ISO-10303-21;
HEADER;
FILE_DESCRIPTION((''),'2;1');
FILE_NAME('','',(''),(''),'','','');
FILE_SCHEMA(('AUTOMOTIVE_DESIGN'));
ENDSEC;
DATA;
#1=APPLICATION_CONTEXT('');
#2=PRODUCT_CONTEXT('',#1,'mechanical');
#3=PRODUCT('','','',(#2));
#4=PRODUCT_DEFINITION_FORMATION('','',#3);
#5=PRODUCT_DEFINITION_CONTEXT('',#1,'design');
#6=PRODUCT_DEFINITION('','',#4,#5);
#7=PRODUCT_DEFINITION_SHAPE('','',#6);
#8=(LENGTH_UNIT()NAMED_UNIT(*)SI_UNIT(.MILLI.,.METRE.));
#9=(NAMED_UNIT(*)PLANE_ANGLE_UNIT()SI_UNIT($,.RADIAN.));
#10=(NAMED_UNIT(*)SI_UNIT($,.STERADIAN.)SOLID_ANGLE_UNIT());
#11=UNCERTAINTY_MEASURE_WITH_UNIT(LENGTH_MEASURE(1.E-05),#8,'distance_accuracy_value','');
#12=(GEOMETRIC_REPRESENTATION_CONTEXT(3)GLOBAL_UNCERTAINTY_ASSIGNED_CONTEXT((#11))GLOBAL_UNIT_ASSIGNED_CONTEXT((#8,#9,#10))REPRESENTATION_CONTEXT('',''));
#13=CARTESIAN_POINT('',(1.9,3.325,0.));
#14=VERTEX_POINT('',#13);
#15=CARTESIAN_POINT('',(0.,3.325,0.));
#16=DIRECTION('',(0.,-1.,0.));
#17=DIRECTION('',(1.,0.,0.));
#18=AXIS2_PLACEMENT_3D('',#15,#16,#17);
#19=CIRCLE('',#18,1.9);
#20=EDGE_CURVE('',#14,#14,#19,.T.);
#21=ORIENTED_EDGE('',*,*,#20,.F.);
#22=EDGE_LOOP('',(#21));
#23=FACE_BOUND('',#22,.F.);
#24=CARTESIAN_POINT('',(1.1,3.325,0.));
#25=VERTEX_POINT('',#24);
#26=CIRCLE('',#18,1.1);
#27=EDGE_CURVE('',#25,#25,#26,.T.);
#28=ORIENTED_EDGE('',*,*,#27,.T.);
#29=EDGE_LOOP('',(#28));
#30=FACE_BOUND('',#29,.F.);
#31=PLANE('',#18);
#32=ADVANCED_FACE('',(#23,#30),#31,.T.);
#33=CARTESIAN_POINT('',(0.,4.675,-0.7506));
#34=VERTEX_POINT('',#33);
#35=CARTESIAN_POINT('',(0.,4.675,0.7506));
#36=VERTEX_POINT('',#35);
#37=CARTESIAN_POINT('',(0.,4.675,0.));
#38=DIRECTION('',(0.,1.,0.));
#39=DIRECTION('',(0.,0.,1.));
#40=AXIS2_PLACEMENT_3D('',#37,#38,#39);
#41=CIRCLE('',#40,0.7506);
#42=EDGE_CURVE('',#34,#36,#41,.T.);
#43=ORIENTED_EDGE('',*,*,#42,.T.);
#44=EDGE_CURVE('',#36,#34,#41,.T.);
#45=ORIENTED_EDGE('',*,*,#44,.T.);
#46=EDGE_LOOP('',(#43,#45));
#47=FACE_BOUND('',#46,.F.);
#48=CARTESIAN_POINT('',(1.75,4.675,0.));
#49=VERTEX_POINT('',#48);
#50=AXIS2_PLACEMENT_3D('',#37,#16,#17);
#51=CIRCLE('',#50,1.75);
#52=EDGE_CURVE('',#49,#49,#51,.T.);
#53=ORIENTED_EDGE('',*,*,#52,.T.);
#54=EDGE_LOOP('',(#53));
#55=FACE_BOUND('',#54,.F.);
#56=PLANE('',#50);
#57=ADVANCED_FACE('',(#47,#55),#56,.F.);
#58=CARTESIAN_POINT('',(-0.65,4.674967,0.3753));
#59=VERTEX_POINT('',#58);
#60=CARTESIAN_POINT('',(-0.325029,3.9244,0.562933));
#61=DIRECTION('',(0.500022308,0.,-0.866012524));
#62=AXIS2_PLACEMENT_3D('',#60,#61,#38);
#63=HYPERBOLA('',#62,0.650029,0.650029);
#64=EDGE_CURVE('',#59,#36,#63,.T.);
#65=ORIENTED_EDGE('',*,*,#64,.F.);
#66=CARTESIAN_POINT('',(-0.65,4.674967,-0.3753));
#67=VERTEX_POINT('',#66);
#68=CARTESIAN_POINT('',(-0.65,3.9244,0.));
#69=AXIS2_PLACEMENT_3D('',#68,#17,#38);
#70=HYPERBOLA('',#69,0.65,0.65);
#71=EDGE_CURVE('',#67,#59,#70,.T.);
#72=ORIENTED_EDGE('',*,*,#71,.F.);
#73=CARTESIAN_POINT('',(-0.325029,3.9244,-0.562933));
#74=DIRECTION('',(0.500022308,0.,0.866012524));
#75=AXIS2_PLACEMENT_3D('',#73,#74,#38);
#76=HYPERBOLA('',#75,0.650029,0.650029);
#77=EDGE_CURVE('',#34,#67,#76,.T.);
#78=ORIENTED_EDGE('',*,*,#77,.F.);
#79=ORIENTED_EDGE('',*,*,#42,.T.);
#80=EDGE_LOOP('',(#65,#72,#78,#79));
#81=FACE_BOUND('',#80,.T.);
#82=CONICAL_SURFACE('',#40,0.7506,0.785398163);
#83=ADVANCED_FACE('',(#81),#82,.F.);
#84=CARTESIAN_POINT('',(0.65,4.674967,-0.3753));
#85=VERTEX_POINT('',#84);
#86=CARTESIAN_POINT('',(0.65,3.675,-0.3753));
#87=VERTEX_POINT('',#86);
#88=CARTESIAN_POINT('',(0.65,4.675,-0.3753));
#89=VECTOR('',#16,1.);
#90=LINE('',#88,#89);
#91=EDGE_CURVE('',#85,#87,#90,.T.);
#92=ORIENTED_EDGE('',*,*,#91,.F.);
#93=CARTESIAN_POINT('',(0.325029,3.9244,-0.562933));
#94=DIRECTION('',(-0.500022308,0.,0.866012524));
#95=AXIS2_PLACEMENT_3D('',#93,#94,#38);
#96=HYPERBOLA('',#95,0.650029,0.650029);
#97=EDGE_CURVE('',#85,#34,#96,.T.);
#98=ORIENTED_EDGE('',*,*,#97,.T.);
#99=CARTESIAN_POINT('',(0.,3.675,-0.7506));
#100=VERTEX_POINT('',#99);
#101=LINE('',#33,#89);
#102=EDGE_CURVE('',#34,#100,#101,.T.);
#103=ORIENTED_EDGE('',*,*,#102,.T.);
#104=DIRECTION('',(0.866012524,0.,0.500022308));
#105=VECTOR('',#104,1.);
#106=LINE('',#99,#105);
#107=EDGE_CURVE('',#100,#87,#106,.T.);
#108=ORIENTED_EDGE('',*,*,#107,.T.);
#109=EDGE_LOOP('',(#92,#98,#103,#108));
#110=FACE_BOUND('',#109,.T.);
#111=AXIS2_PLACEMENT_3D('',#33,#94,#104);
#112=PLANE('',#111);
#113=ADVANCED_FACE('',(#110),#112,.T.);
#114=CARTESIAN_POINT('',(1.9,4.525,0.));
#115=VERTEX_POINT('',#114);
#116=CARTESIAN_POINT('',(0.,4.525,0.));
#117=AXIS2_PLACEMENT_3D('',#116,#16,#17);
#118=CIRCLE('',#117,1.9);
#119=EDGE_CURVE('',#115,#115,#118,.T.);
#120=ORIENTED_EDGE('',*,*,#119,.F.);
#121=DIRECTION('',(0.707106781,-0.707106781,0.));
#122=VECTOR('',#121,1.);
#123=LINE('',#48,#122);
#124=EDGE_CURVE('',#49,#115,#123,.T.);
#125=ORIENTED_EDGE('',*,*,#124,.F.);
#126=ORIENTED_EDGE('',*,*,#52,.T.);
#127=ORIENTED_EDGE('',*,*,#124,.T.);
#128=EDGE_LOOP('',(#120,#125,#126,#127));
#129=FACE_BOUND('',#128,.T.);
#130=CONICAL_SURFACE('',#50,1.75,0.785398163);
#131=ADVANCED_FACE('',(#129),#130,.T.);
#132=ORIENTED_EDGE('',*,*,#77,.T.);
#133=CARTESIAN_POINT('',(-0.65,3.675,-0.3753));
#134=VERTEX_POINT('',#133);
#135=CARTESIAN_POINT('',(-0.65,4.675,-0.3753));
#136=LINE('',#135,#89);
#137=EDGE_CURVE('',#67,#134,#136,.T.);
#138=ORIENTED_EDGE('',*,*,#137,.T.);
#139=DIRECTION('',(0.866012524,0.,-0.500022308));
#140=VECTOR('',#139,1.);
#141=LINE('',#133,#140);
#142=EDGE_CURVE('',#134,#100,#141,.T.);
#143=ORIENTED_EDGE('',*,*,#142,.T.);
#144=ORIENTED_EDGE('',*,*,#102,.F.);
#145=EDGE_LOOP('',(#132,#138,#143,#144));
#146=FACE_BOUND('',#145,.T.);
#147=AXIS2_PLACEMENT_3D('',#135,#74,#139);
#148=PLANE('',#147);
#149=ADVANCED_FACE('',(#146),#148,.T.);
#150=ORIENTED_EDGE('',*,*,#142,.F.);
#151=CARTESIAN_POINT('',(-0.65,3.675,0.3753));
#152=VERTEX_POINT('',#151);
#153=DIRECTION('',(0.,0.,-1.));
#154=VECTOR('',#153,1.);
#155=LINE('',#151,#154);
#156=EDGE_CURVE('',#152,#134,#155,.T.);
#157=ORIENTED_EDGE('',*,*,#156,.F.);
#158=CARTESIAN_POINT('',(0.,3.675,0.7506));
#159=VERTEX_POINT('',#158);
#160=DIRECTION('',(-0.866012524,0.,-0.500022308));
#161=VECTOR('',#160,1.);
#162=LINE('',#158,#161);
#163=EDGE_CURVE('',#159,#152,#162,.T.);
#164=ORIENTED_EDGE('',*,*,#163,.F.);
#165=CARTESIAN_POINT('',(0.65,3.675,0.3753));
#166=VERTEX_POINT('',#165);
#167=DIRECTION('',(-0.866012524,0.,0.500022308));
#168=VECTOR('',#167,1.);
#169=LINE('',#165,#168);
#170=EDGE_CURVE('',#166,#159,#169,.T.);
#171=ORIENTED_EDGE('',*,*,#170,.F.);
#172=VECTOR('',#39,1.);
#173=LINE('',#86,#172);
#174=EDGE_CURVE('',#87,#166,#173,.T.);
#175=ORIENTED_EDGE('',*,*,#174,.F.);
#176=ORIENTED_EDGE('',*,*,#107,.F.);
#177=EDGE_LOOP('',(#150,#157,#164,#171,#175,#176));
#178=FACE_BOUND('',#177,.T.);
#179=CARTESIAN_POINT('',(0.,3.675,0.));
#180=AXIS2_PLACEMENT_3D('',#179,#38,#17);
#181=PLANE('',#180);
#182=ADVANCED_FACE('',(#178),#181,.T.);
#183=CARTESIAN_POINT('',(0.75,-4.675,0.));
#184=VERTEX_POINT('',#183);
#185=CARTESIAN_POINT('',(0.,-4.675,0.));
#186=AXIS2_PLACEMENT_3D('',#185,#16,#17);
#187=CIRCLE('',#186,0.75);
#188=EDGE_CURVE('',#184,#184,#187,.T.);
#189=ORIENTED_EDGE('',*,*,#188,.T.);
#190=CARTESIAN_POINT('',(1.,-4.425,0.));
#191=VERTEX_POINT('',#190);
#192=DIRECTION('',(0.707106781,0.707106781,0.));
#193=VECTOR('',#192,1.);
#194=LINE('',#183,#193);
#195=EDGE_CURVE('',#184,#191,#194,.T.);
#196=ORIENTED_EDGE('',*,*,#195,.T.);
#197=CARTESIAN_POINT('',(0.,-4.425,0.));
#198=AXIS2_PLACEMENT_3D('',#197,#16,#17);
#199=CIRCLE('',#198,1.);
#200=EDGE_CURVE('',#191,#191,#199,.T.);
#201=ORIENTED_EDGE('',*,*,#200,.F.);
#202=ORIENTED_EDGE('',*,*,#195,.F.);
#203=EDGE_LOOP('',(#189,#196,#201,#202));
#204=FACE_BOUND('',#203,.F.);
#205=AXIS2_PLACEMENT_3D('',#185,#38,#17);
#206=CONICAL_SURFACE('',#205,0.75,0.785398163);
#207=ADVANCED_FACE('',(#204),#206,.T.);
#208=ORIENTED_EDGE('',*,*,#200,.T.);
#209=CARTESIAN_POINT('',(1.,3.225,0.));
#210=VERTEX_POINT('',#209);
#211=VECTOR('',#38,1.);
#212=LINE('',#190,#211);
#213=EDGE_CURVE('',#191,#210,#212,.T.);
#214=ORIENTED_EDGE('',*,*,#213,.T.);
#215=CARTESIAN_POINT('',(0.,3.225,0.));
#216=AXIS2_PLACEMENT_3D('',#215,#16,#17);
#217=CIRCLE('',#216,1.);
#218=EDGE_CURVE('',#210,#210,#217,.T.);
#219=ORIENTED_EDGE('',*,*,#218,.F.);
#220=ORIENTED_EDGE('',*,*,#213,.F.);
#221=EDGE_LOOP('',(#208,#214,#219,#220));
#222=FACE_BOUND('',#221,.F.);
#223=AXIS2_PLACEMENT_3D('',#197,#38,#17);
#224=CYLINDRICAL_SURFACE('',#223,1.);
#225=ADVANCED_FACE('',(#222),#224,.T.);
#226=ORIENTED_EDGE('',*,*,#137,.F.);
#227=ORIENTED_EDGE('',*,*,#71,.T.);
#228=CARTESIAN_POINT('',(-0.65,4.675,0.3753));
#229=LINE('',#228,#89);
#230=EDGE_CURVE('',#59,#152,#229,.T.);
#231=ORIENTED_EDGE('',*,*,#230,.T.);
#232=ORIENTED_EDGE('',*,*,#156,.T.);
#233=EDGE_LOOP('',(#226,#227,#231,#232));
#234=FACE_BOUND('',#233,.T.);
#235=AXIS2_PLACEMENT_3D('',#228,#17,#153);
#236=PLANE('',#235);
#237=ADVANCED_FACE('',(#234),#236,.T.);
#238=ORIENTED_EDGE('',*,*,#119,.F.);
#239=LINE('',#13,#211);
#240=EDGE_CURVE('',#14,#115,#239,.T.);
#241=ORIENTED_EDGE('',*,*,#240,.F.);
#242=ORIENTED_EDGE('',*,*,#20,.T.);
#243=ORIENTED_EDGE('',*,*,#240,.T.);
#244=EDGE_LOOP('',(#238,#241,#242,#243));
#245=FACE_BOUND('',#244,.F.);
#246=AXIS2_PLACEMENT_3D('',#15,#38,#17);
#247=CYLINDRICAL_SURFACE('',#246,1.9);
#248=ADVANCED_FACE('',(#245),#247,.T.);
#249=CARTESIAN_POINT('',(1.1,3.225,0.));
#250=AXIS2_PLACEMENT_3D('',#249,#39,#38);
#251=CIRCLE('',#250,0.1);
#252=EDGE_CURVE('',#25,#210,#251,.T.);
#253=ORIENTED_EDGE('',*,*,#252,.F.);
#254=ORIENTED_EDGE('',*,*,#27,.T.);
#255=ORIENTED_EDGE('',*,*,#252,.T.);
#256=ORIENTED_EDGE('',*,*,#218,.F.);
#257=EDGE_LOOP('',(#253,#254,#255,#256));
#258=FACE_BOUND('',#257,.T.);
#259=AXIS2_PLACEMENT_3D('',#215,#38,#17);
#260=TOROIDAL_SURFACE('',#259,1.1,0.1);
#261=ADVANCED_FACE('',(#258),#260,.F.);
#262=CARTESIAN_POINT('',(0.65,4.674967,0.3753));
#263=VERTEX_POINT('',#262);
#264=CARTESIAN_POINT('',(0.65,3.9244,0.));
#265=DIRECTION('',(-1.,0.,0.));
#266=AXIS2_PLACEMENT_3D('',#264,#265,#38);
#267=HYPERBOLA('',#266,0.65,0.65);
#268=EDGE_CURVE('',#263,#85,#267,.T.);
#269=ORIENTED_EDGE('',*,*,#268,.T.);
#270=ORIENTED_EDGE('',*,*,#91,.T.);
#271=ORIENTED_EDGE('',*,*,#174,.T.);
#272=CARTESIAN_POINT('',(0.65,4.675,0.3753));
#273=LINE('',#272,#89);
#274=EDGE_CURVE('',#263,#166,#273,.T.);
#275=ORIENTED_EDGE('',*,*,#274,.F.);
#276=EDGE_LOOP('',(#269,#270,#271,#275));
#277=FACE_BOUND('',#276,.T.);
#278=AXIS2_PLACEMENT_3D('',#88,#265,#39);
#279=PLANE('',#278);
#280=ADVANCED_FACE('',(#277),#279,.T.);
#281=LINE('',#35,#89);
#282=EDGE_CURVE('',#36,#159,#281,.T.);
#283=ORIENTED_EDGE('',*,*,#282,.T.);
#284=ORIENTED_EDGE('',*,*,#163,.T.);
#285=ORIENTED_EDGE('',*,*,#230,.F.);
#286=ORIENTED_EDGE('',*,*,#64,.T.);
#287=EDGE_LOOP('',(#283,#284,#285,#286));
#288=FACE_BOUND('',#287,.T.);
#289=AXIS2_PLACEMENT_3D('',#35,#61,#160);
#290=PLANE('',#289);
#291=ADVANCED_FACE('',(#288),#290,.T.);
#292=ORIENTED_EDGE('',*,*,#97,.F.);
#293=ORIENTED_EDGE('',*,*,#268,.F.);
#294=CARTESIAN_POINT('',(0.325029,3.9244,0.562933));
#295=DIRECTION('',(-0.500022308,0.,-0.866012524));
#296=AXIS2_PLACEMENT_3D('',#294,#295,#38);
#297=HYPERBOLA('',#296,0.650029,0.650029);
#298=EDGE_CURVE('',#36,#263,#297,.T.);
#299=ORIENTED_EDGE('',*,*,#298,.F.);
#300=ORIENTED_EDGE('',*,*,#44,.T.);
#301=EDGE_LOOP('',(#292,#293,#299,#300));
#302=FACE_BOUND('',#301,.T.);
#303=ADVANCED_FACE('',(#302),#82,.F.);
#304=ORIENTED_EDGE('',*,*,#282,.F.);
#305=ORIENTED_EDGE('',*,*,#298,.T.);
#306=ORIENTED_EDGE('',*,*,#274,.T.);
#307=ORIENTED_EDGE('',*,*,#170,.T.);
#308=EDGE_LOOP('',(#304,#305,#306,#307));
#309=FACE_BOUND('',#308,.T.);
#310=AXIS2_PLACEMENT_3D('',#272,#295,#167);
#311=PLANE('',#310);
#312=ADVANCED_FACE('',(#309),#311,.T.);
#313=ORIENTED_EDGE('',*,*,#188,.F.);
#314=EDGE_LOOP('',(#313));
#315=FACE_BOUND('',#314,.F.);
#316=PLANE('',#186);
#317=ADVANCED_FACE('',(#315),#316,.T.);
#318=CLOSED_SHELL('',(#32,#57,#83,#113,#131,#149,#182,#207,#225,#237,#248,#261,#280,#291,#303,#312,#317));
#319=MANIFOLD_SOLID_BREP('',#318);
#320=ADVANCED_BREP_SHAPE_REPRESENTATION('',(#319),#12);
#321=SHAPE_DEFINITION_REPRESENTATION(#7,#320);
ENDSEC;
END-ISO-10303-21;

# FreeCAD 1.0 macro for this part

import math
import FreeCAD as App
import Part
import Sketcher
from FreeCAD import Vector
Q = App.Units.Quantity

doc = App.newDocument("Part")
params = doc.addObject("Spreadsheet::Sheet", "Params")
for row, (alias, value) in enumerate([
    ("sketch1_radius", "0.1 mm"),
    ("sketch1_width", "0.8 mm"),
    ("revolution_angle", "360 deg"),
    ("pocket1_length", "1 mm"),
    ("sketch3_width", "0.5 mm"),
    ("groove_angle", "360 deg"),
], start=1):
    params.set(f"A{row}", alias)
    params.set(f"B{row}", "=" + value)
    params.setAlias(f"B{row}", alias)

body = doc.addObject("PartDesign::Body", "Body")

sketch1 = body.newObject("Sketcher::SketchObject", "Sketch")
sketch1.AttachmentSupport = (doc.getObject("XY_Plane"), [""])
sketch1.MapMode = "FlatFace"
sketch1.addGeometry([
    Part.LineSegment(Vector(1.75, 4.67, 0), Vector(0, 4.67, 0)),
    Part.LineSegment(Vector(0, 4.67, 0), Vector(0, -4.67, 0)),
    Part.LineSegment(Vector(0, -4.67, 0), Vector(0.75, -4.67, 0)),
    Part.LineSegment(Vector(0.75, -4.67, 0), Vector(1, -4.42, 0)),
    Part.LineSegment(Vector(1, -4.42, 0), Vector(1, 3.23, 0)),
    Part.ArcOfCircle(Part.Circle(Vector(1.1, 3.23, 0), Vector(0, 0, 1), 0.1), math.radians(90), math.radians(180)),
    Part.LineSegment(Vector(1.1, 3.33, 0), Vector(1.9, 3.33, 0)),
    Part.LineSegment(Vector(1.9, 3.33, 0), Vector(1.9, 4.53, 0)),
    Part.LineSegment(Vector(1.9, 4.53, 0), Vector(1.75, 4.67, 0)),
], False)
sketch1.addConstraint([
    Sketcher.Constraint("Coincident", 0, 2, 1, 1),
    Sketcher.Constraint("Coincident", 1, 2, 2, 1),
    Sketcher.Constraint("Coincident", 2, 2, 3, 1),
    Sketcher.Constraint("Coincident", 3, 2, 4, 1),
    Sketcher.Constraint("Tangent", 4, 2, 5, 2),
    Sketcher.Constraint("Tangent", 5, 1, 6, 1),
    Sketcher.Constraint("Coincident", 6, 2, 7, 1),
    Sketcher.Constraint("Coincident", 7, 2, 8, 1),
    Sketcher.Constraint("Coincident", 8, 2, 0, 1),
    Sketcher.Constraint("Horizontal", 0),
    Sketcher.Constraint("Vertical", 1),
    Sketcher.Constraint("Horizontal", 2),
    Sketcher.Constraint("Vertical", 4),
    Sketcher.Constraint("Horizontal", 6),
    Sketcher.Constraint("Vertical", 7),
    Sketcher.Constraint("Symmetric", 0, 2, 1, 2, -1, 1),
    Sketcher.Constraint("Perpendicular", 3, 8),
    Sketcher.Constraint("Angle", 8, Q("135 deg")),
    Sketcher.Constraint("DistanceY", 2, 2, 5, 1, Q("8 mm")),
    Sketcher.Constraint("Radius", 5, Q("0.1 mm")),
    Sketcher.Constraint("DistanceX", 2, 2, 3, 2, Q("0.25 mm")),
    Sketcher.Constraint("DistanceY", 5, 1, 0, 2, Q("1.35 mm")),
    Sketcher.Constraint("DistanceY", 7, 2, 0, 2, Q("0.15 mm")),
    Sketcher.Constraint("DistanceX", 6, 1, 6, 2, Q("0.8 mm")),
    Sketcher.Constraint("DistanceX", -1, 1, 3, 2, Q("1 mm")),
])
sketch1.setExpression("Constraints[19]", "Params.sketch1_radius")
sketch1.setExpression("Constraints[23]", "Params.sketch1_width")
revolution = body.newObject("PartDesign::Revolution", "Revolution")
revolution.Profile = sketch1
revolution.ReferenceAxis = (sketch1, ["V_Axis"])
revolution.setExpression("Angle", "Params.revolution_angle")

sketch2 = body.newObject("Sketcher::SketchObject", "Sketch001")
sketch2.AttachmentSupport = (doc.getObject("XZ_Plane"), [""])
sketch2.MapMode = "FlatFace"
sketch2.AttachmentOffset = App.Placement(Vector(0, 0, -4.675), App.Rotation())
sketch2.addGeometry([
    Part.LineSegment(Vector(-0.7, 0.4, 0), Vector(0, 0.8, 0)),
    Part.LineSegment(Vector(0, 0.8, 0), Vector(0.7, 0.4, 0)),
    Part.LineSegment(Vector(0.7, 0.4, 0), Vector(0.7, -0.4, 0)),
    Part.LineSegment(Vector(0.7, -0.4, 0), Vector(0, -0.8, 0)),
    Part.LineSegment(Vector(0, -0.8, 0), Vector(-0.7, -0.4, 0)),
    Part.LineSegment(Vector(-0.7, -0.4, 0), Vector(-0.7, 0.4, 0)),
], False)
sketch2.addConstraint([
    Sketcher.Constraint("Coincident", 0, 2, 1, 1),
    Sketcher.Constraint("Coincident", 1, 2, 2, 1),
    Sketcher.Constraint("Coincident", 2, 2, 3, 1),
    Sketcher.Constraint("Coincident", 3, 2, 4, 1),
    Sketcher.Constraint("Coincident", 4, 2, 5, 1),
    Sketcher.Constraint("Coincident", 5, 2, 0, 1),
    Sketcher.Constraint("Vertical", 2),
    Sketcher.Constraint("Vertical", 5),
    Sketcher.Constraint("Symmetric", 0, 2, 3, 2, -1, 1),
    Sketcher.Constraint("Symmetric", 1, 2, 4, 2, -1, 1),
    Sketcher.Constraint("PointOnObject", 0, 2, -2),
    Sketcher.Constraint("Parallel", 0, 3),
    Sketcher.Constraint("Horizontal", 2, 2, 4, 2),
    Sketcher.Constraint("DistanceX", 4, 2, 2, 2, Q("1.3 mm")),
    Sketcher.Constraint("DistanceY", 2, 2, 2, 1, Q("0.7506 mm")),
    Sketcher.Constraint("DistanceY", 2, 2, 0, 2, Q("1.126 mm")),
])
pocket1 = body.newObject("PartDesign::Pocket", "Pocket")
pocket1.Profile = sketch2
pocket1.setExpression("Length", "Params.pocket1_length")
pocket1.Reversed = True

sketch3 = body.newObject("Sketcher::SketchObject", "Sketch002")
sketch3.AttachmentSupport = (doc.getObject("YZ_Plane"), [""])
sketch3.MapMode = "FlatFace"
sketch3.addGeometry([
    Part.LineSegment(Vector(4.7, 0.3, 0), Vector(4.7, 0.8, 0)),
    Part.LineSegment(Vector(4.7, 0.8, 0), Vector(4.2, 0.3, 0)),
    Part.LineSegment(Vector(4.2, 0.3, 0), Vector(4.7, 0.3, 0)),
], False)
sketch3.addConstraint([
    Sketcher.Constraint("Coincident", 0, 2, 1, 1),
    Sketcher.Constraint("Coincident", 1, 2, 2, 1),
    Sketcher.Constraint("Coincident", 2, 2, 0, 1),
    Sketcher.Constraint("Vertical", 0),
    Sketcher.Constraint("Horizontal", 2),
    Sketcher.Constraint("Equal", 2, 0),
    Sketcher.Constraint("DistanceX", 2, 1, 2, 2, Q("0.5 mm")),
    Sketcher.Constraint("DistanceX", -1, 1, 0, 2, Q("4.675 mm")),
    Sketcher.Constraint("DistanceY", -1, 1, 0, 2, Q("0.7506 mm")),
])
sketch3.setExpression("Constraints[6]", "Params.sketch3_width")
groove = body.newObject("PartDesign::Groove", "Groove")
groove.Profile = sketch3
groove.ReferenceAxis = (sketch3, ["H_Axis"])
groove.setExpression("Angle", "Params.groove_angle")

doc.recompute()
